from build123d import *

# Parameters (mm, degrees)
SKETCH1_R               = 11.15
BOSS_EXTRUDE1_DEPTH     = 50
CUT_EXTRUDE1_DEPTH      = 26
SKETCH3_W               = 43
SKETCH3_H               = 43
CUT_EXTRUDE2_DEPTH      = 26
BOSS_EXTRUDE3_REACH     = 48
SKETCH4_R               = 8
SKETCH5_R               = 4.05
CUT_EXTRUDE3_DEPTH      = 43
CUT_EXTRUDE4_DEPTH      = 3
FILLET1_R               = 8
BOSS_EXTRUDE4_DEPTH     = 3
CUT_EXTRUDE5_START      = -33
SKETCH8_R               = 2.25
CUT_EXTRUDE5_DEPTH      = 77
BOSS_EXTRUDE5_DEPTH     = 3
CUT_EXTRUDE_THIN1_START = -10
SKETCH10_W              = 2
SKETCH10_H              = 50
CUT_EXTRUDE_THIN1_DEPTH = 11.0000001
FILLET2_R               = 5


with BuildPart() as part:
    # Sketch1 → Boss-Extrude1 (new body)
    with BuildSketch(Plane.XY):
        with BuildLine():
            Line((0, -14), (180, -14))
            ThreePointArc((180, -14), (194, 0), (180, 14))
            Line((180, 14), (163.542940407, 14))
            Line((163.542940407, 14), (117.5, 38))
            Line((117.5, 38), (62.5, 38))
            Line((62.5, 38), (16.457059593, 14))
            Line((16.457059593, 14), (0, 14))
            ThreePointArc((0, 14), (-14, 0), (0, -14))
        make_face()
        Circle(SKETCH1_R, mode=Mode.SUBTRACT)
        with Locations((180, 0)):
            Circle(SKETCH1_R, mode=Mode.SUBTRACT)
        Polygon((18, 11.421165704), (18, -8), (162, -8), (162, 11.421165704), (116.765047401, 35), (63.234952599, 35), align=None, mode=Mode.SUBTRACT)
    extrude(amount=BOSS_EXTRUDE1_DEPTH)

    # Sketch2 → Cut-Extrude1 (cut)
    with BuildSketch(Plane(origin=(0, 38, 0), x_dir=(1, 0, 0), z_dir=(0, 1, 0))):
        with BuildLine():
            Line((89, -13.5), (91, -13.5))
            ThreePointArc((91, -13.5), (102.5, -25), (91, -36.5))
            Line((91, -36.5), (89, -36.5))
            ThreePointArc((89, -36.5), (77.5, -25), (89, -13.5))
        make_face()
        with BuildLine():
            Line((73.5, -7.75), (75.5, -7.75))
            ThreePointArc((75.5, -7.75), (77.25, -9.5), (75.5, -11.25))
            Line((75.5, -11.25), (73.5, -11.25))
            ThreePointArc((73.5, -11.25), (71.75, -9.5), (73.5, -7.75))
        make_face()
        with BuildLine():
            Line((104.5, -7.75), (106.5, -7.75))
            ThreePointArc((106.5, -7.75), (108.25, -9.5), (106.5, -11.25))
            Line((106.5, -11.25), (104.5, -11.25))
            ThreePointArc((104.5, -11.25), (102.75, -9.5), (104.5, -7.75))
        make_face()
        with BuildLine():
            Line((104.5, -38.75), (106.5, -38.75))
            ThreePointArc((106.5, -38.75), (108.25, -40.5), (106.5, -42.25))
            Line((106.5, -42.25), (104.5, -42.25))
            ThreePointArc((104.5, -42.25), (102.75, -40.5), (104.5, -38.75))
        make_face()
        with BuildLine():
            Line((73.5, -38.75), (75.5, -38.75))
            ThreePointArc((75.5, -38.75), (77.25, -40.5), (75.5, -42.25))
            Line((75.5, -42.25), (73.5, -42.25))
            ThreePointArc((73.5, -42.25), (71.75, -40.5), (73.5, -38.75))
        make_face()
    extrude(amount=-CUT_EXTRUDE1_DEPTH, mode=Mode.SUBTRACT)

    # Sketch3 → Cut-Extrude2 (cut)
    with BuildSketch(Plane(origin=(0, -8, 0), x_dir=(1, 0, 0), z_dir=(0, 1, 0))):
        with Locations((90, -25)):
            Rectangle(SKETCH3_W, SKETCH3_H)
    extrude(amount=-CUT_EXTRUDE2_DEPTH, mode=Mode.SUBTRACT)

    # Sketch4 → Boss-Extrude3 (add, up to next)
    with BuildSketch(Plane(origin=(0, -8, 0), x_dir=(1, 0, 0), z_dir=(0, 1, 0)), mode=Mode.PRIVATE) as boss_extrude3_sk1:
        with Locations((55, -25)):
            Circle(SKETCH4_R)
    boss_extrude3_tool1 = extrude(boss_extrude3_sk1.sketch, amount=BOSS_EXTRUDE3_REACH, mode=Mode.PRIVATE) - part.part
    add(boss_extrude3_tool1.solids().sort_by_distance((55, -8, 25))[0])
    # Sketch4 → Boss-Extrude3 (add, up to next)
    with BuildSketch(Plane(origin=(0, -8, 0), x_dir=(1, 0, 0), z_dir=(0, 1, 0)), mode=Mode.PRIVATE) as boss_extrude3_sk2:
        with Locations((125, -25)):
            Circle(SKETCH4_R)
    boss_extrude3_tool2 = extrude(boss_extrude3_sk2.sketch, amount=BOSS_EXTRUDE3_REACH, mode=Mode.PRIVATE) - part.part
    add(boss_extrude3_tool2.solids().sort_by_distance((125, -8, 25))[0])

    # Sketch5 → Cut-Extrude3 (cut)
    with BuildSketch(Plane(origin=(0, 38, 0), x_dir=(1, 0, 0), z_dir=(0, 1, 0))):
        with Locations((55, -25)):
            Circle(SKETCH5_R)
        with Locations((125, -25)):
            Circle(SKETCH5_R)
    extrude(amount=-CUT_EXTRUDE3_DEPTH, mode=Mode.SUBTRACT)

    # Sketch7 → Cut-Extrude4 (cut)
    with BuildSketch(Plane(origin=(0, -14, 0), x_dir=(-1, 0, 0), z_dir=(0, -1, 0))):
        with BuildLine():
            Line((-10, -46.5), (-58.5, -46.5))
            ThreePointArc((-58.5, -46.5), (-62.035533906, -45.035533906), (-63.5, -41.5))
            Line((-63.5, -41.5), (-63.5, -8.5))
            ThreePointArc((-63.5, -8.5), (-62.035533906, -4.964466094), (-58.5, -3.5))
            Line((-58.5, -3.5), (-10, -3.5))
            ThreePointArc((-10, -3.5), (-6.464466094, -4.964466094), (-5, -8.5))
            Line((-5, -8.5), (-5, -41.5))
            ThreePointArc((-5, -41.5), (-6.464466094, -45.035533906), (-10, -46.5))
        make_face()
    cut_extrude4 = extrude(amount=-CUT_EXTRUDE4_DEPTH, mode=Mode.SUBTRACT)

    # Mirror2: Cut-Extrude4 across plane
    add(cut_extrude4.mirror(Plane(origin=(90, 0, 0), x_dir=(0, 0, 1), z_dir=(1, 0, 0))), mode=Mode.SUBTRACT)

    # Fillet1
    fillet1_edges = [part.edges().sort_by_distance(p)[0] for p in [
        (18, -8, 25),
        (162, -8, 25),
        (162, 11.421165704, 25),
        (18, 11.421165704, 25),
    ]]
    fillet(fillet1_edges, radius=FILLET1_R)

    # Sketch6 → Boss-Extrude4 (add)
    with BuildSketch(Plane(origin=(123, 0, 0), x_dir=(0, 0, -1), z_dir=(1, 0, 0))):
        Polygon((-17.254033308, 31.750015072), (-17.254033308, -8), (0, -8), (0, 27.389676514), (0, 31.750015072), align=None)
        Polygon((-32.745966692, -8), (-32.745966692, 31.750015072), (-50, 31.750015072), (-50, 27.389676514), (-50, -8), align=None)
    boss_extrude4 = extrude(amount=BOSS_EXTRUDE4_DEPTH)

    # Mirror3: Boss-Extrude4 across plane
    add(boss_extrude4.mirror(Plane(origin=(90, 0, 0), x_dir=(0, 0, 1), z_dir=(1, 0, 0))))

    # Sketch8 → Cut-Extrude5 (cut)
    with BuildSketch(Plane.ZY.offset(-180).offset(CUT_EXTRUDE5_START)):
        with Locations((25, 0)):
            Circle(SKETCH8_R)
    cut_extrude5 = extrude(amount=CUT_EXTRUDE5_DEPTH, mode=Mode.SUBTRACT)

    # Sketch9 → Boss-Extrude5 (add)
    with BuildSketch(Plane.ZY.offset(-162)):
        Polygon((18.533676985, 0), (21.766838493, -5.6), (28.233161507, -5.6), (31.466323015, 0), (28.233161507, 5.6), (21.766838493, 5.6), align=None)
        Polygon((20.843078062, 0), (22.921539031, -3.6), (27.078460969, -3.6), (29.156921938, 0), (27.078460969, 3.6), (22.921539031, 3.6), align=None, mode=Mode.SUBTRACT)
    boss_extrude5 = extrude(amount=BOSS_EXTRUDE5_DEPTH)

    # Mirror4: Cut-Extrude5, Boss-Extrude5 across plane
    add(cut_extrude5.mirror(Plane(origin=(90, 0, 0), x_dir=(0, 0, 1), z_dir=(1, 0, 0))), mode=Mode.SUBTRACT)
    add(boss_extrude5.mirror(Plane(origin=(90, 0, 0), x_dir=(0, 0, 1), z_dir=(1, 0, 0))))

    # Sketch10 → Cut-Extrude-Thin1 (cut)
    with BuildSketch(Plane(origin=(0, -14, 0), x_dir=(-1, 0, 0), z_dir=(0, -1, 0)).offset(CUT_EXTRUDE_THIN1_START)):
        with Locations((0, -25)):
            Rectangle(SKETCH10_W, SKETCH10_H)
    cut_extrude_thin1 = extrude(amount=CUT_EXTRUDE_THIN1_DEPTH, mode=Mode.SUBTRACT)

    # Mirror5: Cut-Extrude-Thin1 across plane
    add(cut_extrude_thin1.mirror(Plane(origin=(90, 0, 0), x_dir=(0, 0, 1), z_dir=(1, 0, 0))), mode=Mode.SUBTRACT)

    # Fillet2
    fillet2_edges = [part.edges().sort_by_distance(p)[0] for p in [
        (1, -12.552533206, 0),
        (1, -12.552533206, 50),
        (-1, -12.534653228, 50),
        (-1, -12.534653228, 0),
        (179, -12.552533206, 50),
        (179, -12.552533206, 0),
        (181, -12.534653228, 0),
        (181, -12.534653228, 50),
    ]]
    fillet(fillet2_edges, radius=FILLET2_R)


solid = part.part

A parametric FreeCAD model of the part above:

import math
import FreeCAD as App
import Part
import Sketcher
Q = App.Units.Quantity


def edges_at(feature, points):
    """Names of the edges that pass closest to the given points."""
    edges = feature.Shape.Edges
    near = lambda p: min(range(len(edges)), key=lambda i: edges[i].distToShape(Part.Vertex(*p))[0])
    return sorted({f"Edge{near(p) + 1}" for p in points})

doc = App.newDocument("Part")
body = doc.addObject("PartDesign::Body", "Body")

sketch1 = body.newObject("Sketcher::SketchObject", "Sketch")
sketch1.AttachmentSupport = (doc.getObject("XY_Plane"), [""])
sketch1.MapMode = "FlatFace"
sketch1.addGeometry([
    Part.LineSegment(App.Vector(0, -14, 0), App.Vector(180, -14, 0)),
    Part.ArcOfCircle(Part.Circle(App.Vector(180, 0, 0), App.Vector(0, 0, 1), 14), math.radians(-90), math.radians(90)),
    Part.LineSegment(App.Vector(180, 14, 0), App.Vector(164, 14, 0)),
    Part.LineSegment(App.Vector(164, 14, 0), App.Vector(118, 38, 0)),
    Part.LineSegment(App.Vector(118, 38, 0), App.Vector(62, 38, 0)),
    Part.LineSegment(App.Vector(62, 38, 0), App.Vector(16, 14, 0)),
    Part.LineSegment(App.Vector(16, 14, 0), App.Vector(0, 14, 0)),
    Part.ArcOfCircle(Part.Circle(App.Vector(0, 0, 0), App.Vector(0, 0, 1), 14), math.radians(90), math.radians(270)),
    Part.Circle(App.Vector(0, 0, 0), App.Vector(0, 0, 1), 11),
    Part.Circle(App.Vector(180, 0, 0), App.Vector(0, 0, 1), 11),
    Part.LineSegment(App.Vector(18, -8, 0), App.Vector(18, 11, 0)),
    Part.LineSegment(App.Vector(18, 11, 0), App.Vector(63, 35, 0)),
    Part.LineSegment(App.Vector(63, 35, 0), App.Vector(117, 35, 0)),
    Part.LineSegment(App.Vector(117, 35, 0), App.Vector(162, 11, 0)),
    Part.LineSegment(App.Vector(162, 11, 0), App.Vector(162, -8, 0)),
    Part.LineSegment(App.Vector(162, -8, 0), App.Vector(18, -8, 0)),
], False)
sketch1.addConstraint([
    Sketcher.Constraint("Tangent", 0, 2, 1, 1),
    Sketcher.Constraint("Tangent", 1, 2, 2, 1),
    Sketcher.Constraint("Coincident", 2, 2, 3, 1),
    Sketcher.Constraint("Coincident", 3, 2, 4, 1),
    Sketcher.Constraint("Coincident", 4, 2, 5, 1),
    Sketcher.Constraint("Coincident", 5, 2, 6, 1),
    Sketcher.Constraint("Tangent", 6, 2, 7, 1),
    Sketcher.Constraint("Tangent", 7, 2, 0, 1),
    Sketcher.Constraint("Coincident", 10, 2, 11, 1),
    Sketcher.Constraint("Coincident", 11, 2, 12, 1),
    Sketcher.Constraint("Coincident", 12, 2, 13, 1),
    Sketcher.Constraint("Coincident", 13, 2, 14, 1),
    Sketcher.Constraint("Coincident", 14, 2, 15, 1),
    Sketcher.Constraint("Coincident", 15, 2, 10, 1),
    Sketcher.Constraint("Horizontal", 0),
    Sketcher.Constraint("Horizontal", 2),
    Sketcher.Constraint("Horizontal", 4),
    Sketcher.Constraint("Horizontal", 6),
    Sketcher.Constraint("Vertical", 10),
    Sketcher.Constraint("Horizontal", 12),
    Sketcher.Constraint("Vertical", 14),
    Sketcher.Constraint("Horizontal", 15),
    Sketcher.Constraint("Coincident", 7, 3, -1, 1),
    Sketcher.Constraint("Coincident", 8, 3, -1, 1),
    Sketcher.Constraint("Coincident", 9, 3, 1, 3),
    Sketcher.Constraint("Equal", 1, 7),
    Sketcher.Constraint("Equal", 8, 9),
    Sketcher.Constraint("Parallel", 5, 11),
    Sketcher.Constraint("Parallel", 3, 13),
    Sketcher.Constraint("Horizontal", 10, 2, 13, 2),
    Sketcher.Constraint("Equal", 2, 6),
    Sketcher.Constraint("Equal", 3, 5),
    Sketcher.Constraint("Radius", 1, Q("14 mm")),
    Sketcher.Constraint("Diameter", 8, Q("22.3 mm")),
    Sketcher.Constraint("DistanceX", 0, 1, 0, 2, Q("180 mm")),
    Sketcher.Constraint("DistanceX", 4, 2, 4, 1, Q("55 mm")),
    Sketcher.Constraint("DistanceX", 15, 2, 15, 1, Q("144 mm")),
    Sketcher.Constraint("DistanceY", -1, 1, 3, 2, Q("38 mm")),
    Sketcher.Constraint("DistanceX", -1, 1, 10, 2, Q("18 mm")),
    Sketcher.Constraint("DistanceY", -1, 1, 11, 2, Q("35 mm")),
    Sketcher.Constraint("DistanceY", 14, 2, -1, 1, Q("8 mm")),
    Sketcher.Constraint("DistanceX", 2, 2, 2, 1, Q("16.45706 mm")),
    Sketcher.Constraint("DistanceX", 12, 1, 12, 2, Q("53.530095 mm")),
])
pad1 = body.newObject("PartDesign::Pad", "Pad")
pad1.Profile = sketch1
pad1.Length = 50

sketch2 = body.newObject("Sketcher::SketchObject", "Sketch001")
sketch2.AttachmentSupport = (doc.getObject("XZ_Plane"), [""])
sketch2.MapMode = "FlatFace"
sketch2.AttachmentOffset = App.Placement(App.Vector(0, 0, -38), App.Rotation())
sketch2.addGeometry([
    Part.LineSegment(App.Vector(91, 13.5, 0), App.Vector(89, 13.5, 0)),
    Part.ArcOfCircle(Part.Circle(App.Vector(89, 25, 0), App.Vector(0, 0, 1), 11.5), math.radians(90), math.radians(270)),
    Part.LineSegment(App.Vector(89, 36.5, 0), App.Vector(91, 36.5, 0)),
    Part.ArcOfCircle(Part.Circle(App.Vector(91, 25, 0), App.Vector(0, 0, 1), 11.5), math.radians(-90), math.radians(90)),
    Part.LineSegment(App.Vector(75.5, 7.8, 0), App.Vector(73.5, 7.8, 0)),
    Part.ArcOfCircle(Part.Circle(App.Vector(73.5, 9.5, 0), App.Vector(0, 0, 1), 1.8), math.radians(90), math.radians(270)),
    Part.LineSegment(App.Vector(73.5, 11.2, 0), App.Vector(75.5, 11.2, 0)),
    Part.ArcOfCircle(Part.Circle(App.Vector(75.5, 9.5, 0), App.Vector(0, 0, 1), 1.8), math.radians(-90), math.radians(90)),
    Part.LineSegment(App.Vector(106.5, 7.8, 0), App.Vector(104.5, 7.8, 0)),
    Part.ArcOfCircle(Part.Circle(App.Vector(104.5, 9.5, 0), App.Vector(0, 0, 1), 1.8), math.radians(90), math.radians(270)),
    Part.LineSegment(App.Vector(104.5, 11.2, 0), App.Vector(106.5, 11.2, 0)),
    Part.ArcOfCircle(Part.Circle(App.Vector(106.5, 9.5, 0), App.Vector(0, 0, 1), 1.8), math.radians(-90), math.radians(90)),
    Part.LineSegment(App.Vector(106.5, 38.8, 0), App.Vector(104.5, 38.8, 0)),
    Part.ArcOfCircle(Part.Circle(App.Vector(104.5, 40.5, 0), App.Vector(0, 0, 1), 1.8), math.radians(90), math.radians(270)),
    Part.LineSegment(App.Vector(104.5, 42.2, 0), App.Vector(106.5, 42.2, 0)),
    Part.ArcOfCircle(Part.Circle(App.Vector(106.5, 40.5, 0), App.Vector(0, 0, 1), 1.8), math.radians(-90), math.radians(90)),
    Part.LineSegment(App.Vector(75.5, 38.8, 0), App.Vector(73.5, 38.8, 0)),
    Part.ArcOfCircle(Part.Circle(App.Vector(73.5, 40.5, 0), App.Vector(0, 0, 1), 1.8), math.radians(90), math.radians(270)),
    Part.LineSegment(App.Vector(73.5, 42.2, 0), App.Vector(75.5, 42.2, 0)),
    Part.ArcOfCircle(Part.Circle(App.Vector(75.5, 40.5, 0), App.Vector(0, 0, 1), 1.8), math.radians(-90), math.radians(90)),
], False)
sketch2.addConstraint([
    Sketcher.Constraint("Tangent", 0, 2, 1, 2),
    Sketcher.Constraint("Tangent", 1, 1, 2, 1),
    Sketcher.Constraint("Tangent", 2, 2, 3, 2),
    Sketcher.Constraint("Tangent", 3, 1, 0, 1),
    Sketcher.Constraint("Tangent", 4, 2, 5, 2),
    Sketcher.Constraint("Tangent", 5, 1, 6, 1),
    Sketcher.Constraint("Tangent", 6, 2, 7, 2),
    Sketcher.Constraint("Tangent", 7, 1, 4, 1),
    Sketcher.Constraint("Tangent", 8, 2, 9, 2),
    Sketcher.Constraint("Tangent", 9, 1, 10, 1),
    Sketcher.Constraint("Tangent", 10, 2, 11, 2),
    Sketcher.Constraint("Tangent", 11, 1, 8, 1),
    Sketcher.Constraint("Tangent", 12, 2, 13, 2),
    Sketcher.Constraint("Tangent", 13, 1, 14, 1),
    Sketcher.Constraint("Tangent", 14, 2, 15, 2),
    Sketcher.Constraint("Tangent", 15, 1, 12, 1),
    Sketcher.Constraint("Tangent", 16, 2, 17, 2),
    Sketcher.Constraint("Tangent", 17, 1, 18, 1),
    Sketcher.Constraint("Tangent", 18, 2, 19, 2),
    Sketcher.Constraint("Tangent", 19, 1, 16, 1),
    Sketcher.Constraint("Horizontal", 0),
    Sketcher.Constraint("Horizontal", 2),
    Sketcher.Constraint("Horizontal", 4),
    Sketcher.Constraint("Horizontal", 6),
    Sketcher.Constraint("Horizontal", 8),
    Sketcher.Constraint("Horizontal", 10),
    Sketcher.Constraint("Horizontal", 12),
    Sketcher.Constraint("Horizontal", 14),
    Sketcher.Constraint("Horizontal", 16),
    Sketcher.Constraint("Horizontal", 18),
    Sketcher.Constraint("Equal", 7, 9),
    Sketcher.Constraint("Equal", 11, 13),
    Sketcher.Constraint("Equal", 15, 17),
    Sketcher.Constraint("Horizontal", 7, 3, 9, 3),
    Sketcher.Constraint("Horizontal", 15, 3, 17, 3),
    Sketcher.Constraint("Vertical", 9, 3, 13, 3),
    Sketcher.Constraint("Vertical", 11, 3, 15, 3),
    Sketcher.Constraint("Vertical", 5, 3, 17, 3),
    Sketcher.Constraint("Vertical", 7, 3, 19, 3),
    Sketcher.Constraint("Equal", 2, 4),
    Sketcher.Constraint("Equal", 6, 8),
    Sketcher.Constraint("Radius", 1, Q("11.5 mm")),
    Sketcher.Constraint("DistanceX", 0, 2, 0, 1, Q("2 mm")),
    Sketcher.Constraint("Radius", 5, Q("1.75 mm")),
    Sketcher.Constraint("DistanceX", -1, 1, 1, 3, Q("89 mm")),
    Sketcher.Constraint("DistanceY", -1, 1, 1, 3, Q("25 mm")),
    Sketcher.Constraint("DistanceX", 7, 3, 9, 3, Q("29 mm")),
    Sketcher.Constraint("DistanceY", 9, 3, 13, 3, Q("31 mm")),
    Sketcher.Constraint("DistanceY", 7, 3, 0, 2, Q("4 mm")),
    Sketcher.Constraint("DistanceX", -1, 1, 5, 3, Q("73.5 mm")),
])
pocket1 = body.newObject("PartDesign::Pocket", "Pocket")
pocket1.Profile = sketch2
pocket1.Length = 26
pocket1.Reversed = True

sketch3 = body.newObject("Sketcher::SketchObject", "Sketch002")
sketch3.AttachmentSupport = (doc.getObject("XZ_Plane"), [""])
sketch3.MapMode = "FlatFace"
sketch3.AttachmentOffset = App.Placement(App.Vector(0, 0, 8), App.Rotation())
sketch3.addGeometry([
    Part.LineSegment(App.Vector(68, 4, 0), App.Vector(68, 46, 0)),
    Part.LineSegment(App.Vector(68, 46, 0), App.Vector(112, 46, 0)),
    Part.LineSegment(App.Vector(112, 46, 0), App.Vector(112, 4, 0)),
    Part.LineSegment(App.Vector(112, 4, 0), App.Vector(68, 4, 0)),
], False)
sketch3.addConstraint([
    Sketcher.Constraint("Coincident", 0, 2, 1, 1),
    Sketcher.Constraint("Coincident", 1, 2, 2, 1),
    Sketcher.Constraint("Coincident", 2, 2, 3, 1),
    Sketcher.Constraint("Coincident", 3, 2, 0, 1),
    Sketcher.Constraint("Vertical", 0),
    Sketcher.Constraint("Horizontal", 1),
    Sketcher.Constraint("Vertical", 2),
    Sketcher.Constraint("Horizontal", 3),
    Sketcher.Constraint("Equal", 3, 0),
    Sketcher.Constraint("DistanceX", 1, 1, 1, 2, Q("43 mm")),
    Sketcher.Constraint("DistanceX", -1, 1, 0, 2, Q("68.5 mm")),
    Sketcher.Constraint("DistanceY", -1, 1, 0, 2, Q("46.5 mm")),
])
pocket2 = body.newObject("PartDesign::Pocket", "Pocket001")
pocket2.Profile = sketch3
pocket2.Length = 26
pocket2.Reversed = True

sketch4 = body.newObject("Sketcher::SketchObject", "Sketch003")
sketch4.AttachmentSupport = (doc.getObject("XZ_Plane"), [""])
sketch4.MapMode = "FlatFace"
sketch4.AttachmentOffset = App.Placement(App.Vector(0, 0, 8), App.Rotation())
sketch4.addGeometry(Part.Circle(App.Vector(55, 25, 0), App.Vector(0, 0, 1), 8), False)
sketch4.addConstraint([
    Sketcher.Constraint("Diameter", 0, Q("16 mm")),
    Sketcher.Constraint("DistanceX", -1, 1, 0, 3, Q("55 mm")),
    Sketcher.Constraint("DistanceY", -1, 1, 0, 3, Q("25 mm")),
])
pad2 = body.newObject("PartDesign::Pad", "Pad001")
pad2.Profile = sketch4
pad2.Type = "UpToFirst"
pad2.Reversed = True

sketch5 = body.newObject("Sketcher::SketchObject", "Sketch004")
sketch5.AttachmentSupport = (doc.getObject("XZ_Plane"), [""])
sketch5.MapMode = "FlatFace"
sketch5.AttachmentOffset = App.Placement(App.Vector(0, 0, 8), App.Rotation())
sketch5.addGeometry(Part.Circle(App.Vector(125, 25, 0), App.Vector(0, 0, 1), 8), False)
sketch5.addConstraint([
    Sketcher.Constraint("Diameter", 0, Q("16 mm")),
    Sketcher.Constraint("DistanceX", -1, 1, 0, 3, Q("125 mm")),
    Sketcher.Constraint("DistanceY", -1, 1, 0, 3, Q("25 mm")),
])
pad3 = body.newObject("PartDesign::Pad", "Pad002")
pad3.Profile = sketch5
pad3.Type = "UpToFirst"
pad3.Reversed = True

sketch6 = body.newObject("Sketcher::SketchObject", "Sketch005")
sketch6.AttachmentSupport = (doc.getObject("XZ_Plane"), [""])
sketch6.MapMode = "FlatFace"
sketch6.AttachmentOffset = App.Placement(App.Vector(0, 0, -38), App.Rotation())
sketch6.addGeometry([
    Part.Circle(App.Vector(55, 25, 0), App.Vector(0, 0, 1), 4),
    Part.Circle(App.Vector(125, 25, 0), App.Vector(0, 0, 1), 4),
], False)
sketch6.addConstraint([
    Sketcher.Constraint("Equal", 0, 1),
    Sketcher.Constraint("Horizontal", 0, 3, 1, 3),
    Sketcher.Constraint("Diameter", 0, Q("8.1 mm")),
    Sketcher.Constraint("DistanceX", -1, 1, 0, 3, Q("55 mm")),
    Sketcher.Constraint("DistanceY", -1, 1, 0, 3, Q("25 mm")),
    Sketcher.Constraint("DistanceX", -1, 1, 1, 3, Q("125 mm")),
])
pocket3 = body.newObject("PartDesign::Pocket", "Pocket002")
pocket3.Profile = sketch6
pocket3.Length = 43
pocket3.Reversed = True

sketch7 = body.newObject("Sketcher::SketchObject", "Sketch006")
sketch7.AttachmentSupport = (doc.getObject("XZ_Plane"), [""])
sketch7.MapMode = "FlatFace"
sketch7.AttachmentOffset = App.Placement(App.Vector(0, 0, 14), App.Rotation())
sketch7.addGeometry([
    Part.LineSegment(App.Vector(58, 46, 0), App.Vector(10, 46, 0)),
    Part.ArcOfCircle(Part.Circle(App.Vector(10, 42, 0), App.Vector(0, 0, 1), 5), math.radians(90), math.radians(180)),
    Part.LineSegment(App.Vector(5, 42, 0), App.Vector(5, 8, 0)),
    Part.ArcOfCircle(Part.Circle(App.Vector(10, 8, 0), App.Vector(0, 0, 1), 5), math.radians(180), math.radians(270)),
    Part.LineSegment(App.Vector(10, 4, 0), App.Vector(58, 4, 0)),
    Part.ArcOfCircle(Part.Circle(App.Vector(58, 8, 0), App.Vector(0, 0, 1), 5), math.radians(-90), math.radians(0)),
    Part.LineSegment(App.Vector(64, 8, 0), App.Vector(64, 42, 0)),
    Part.ArcOfCircle(Part.Circle(App.Vector(58, 42, 0), App.Vector(0, 0, 1), 5), math.radians(0), math.radians(90)),
], False)
sketch7.addConstraint([
    Sketcher.Constraint("Tangent", 0, 2, 1, 1),
    Sketcher.Constraint("Tangent", 1, 2, 2, 1),
    Sketcher.Constraint("Tangent", 2, 2, 3, 1),
    Sketcher.Constraint("Tangent", 3, 2, 4, 1),
    Sketcher.Constraint("Tangent", 4, 2, 5, 1),
    Sketcher.Constraint("Tangent", 5, 2, 6, 1),
    Sketcher.Constraint("Tangent", 6, 2, 7, 1),
    Sketcher.Constraint("Tangent", 7, 2, 0, 1),
    Sketcher.Constraint("Horizontal", 0),
    Sketcher.Constraint("Vertical", 2),
    Sketcher.Constraint("Horizontal", 4),
    Sketcher.Constraint("Vertical", 6),
    Sketcher.Constraint("Equal", 1, 3),
    Sketcher.Constraint("Equal", 3, 5),
    Sketcher.Constraint("Equal", 5, 7),
    Sketcher.Constraint("Radius", 1, Q("5 mm")),
    Sketcher.Constraint("DistanceY", 2, 2, 2, 1, Q("33 mm")),
    Sketcher.Constraint("DistanceX", 0, 2, 0, 1, Q("48.5 mm")),
    Sketcher.Constraint("DistanceX", -1, 1, 1, 3, Q("10 mm")),
    Sketcher.Constraint("DistanceY", -1, 1, 1, 3, Q("41.5 mm")),
])
pocket4 = body.newObject("PartDesign::Pocket", "Pocket003")
pocket4.Profile = sketch7
pocket4.Length = 3
doc.recompute()

datumplane = body.newObject("PartDesign::Plane", "DatumPlane")
datumplane.AttachmentSupport = (doc.getObject("YZ_Plane"), [""])
datumplane.MapMode = "FlatFace"
datumplane.AttachmentOffset = App.Placement(App.Vector(0, 0, 90), App.Rotation())
mirrored = body.newObject("PartDesign::Mirrored", "Mirrored")
mirrored.Originals = [pocket4]
mirrored.MirrorPlane = (datumplane, [""])
body.Tip = mirrored
doc.recompute()

fillet = body.newObject("PartDesign::Fillet", "Fillet")
fillet.Base = (mirrored, edges_at(mirrored, [
    (18, -8, 25),
    (162, -8, 25),
    (162, 11.421, 25),
    (18, 11.421, 25),
]))
fillet.Radius = 8

sketch8 = body.newObject("Sketcher::SketchObject", "Sketch007")
sketch8.AttachmentSupport = (doc.getObject("YZ_Plane"), [""])
sketch8.MapMode = "FlatFace"
sketch8.AttachmentOffset = App.Placement(App.Vector(0, 0, 123), App.Rotation())
sketch8.addGeometry([
    Part.LineSegment(App.Vector(32, 17, 0), App.Vector(-8, 17, 0)),
    Part.LineSegment(App.Vector(-8, 17, 0), App.Vector(-8, 0, 0)),
    Part.LineSegment(App.Vector(-8, 0, 0), App.Vector(32, 0, 0)),
    Part.LineSegment(App.Vector(32, 0, 0), App.Vector(32, 17, 0)),
    Part.LineSegment(App.Vector(-8, 33, 0), App.Vector(32, 33, 0)),
    Part.LineSegment(App.Vector(32, 33, 0), App.Vector(32, 50, 0)),
    Part.LineSegment(App.Vector(32, 50, 0), App.Vector(-8, 50, 0)),
    Part.LineSegment(App.Vector(-8, 50, 0), App.Vector(-8, 33, 0)),
], False)
sketch8.addConstraint([
    Sketcher.Constraint("Coincident", 0, 2, 1, 1),
    Sketcher.Constraint("Coincident", 1, 2, 2, 1),
    Sketcher.Constraint("Coincident", 2, 2, 3, 1),
    Sketcher.Constraint("Coincident", 3, 2, 0, 1),
    Sketcher.Constraint("Coincident", 4, 2, 5, 1),
    Sketcher.Constraint("Coincident", 5, 2, 6, 1),
    Sketcher.Constraint("Coincident", 6, 2, 7, 1),
    Sketcher.Constraint("Coincident", 7, 2, 4, 1),
    Sketcher.Constraint("Horizontal", 0),
    Sketcher.Constraint("Vertical", 1),
    Sketcher.Constraint("Horizontal", 2),
    Sketcher.Constraint("Vertical", 3),
    Sketcher.Constraint("Horizontal", 4),
    Sketcher.Constraint("Vertical", 5),
    Sketcher.Constraint("Horizontal", 6),
    Sketcher.Constraint("Vertical", 7),
    Sketcher.Constraint("PointOnObject", 1, 2, -1),
    Sketcher.Constraint("Vertical", 3, 2, 4, 2),
    Sketcher.Constraint("Vertical", 1, 2, 6, 2),
    Sketcher.Constraint("Equal", 3, 5),
    Sketcher.Constraint("DistanceX", 0, 2, -1, 1, Q("8 mm")),
    Sketcher.Constraint("DistanceY", -1, 1, 5, 2, Q("50 mm")),
    Sketcher.Constraint("DistanceX", 0, 2, 0, 1, Q("39.750015 mm")),
    Sketcher.Constraint("DistanceY", 1, 2, 1, 1, Q("17.254033 mm")),
])
pad4 = body.newObject("PartDesign::Pad", "Pad003")
pad4.Profile = sketch8
pad4.Length = 3
doc.recompute()

datumplane2 = body.newObject("PartDesign::Plane", "DatumPlane001")
datumplane2.AttachmentSupport = (doc.getObject("YZ_Plane"), [""])
datumplane2.MapMode = "FlatFace"
datumplane2.AttachmentOffset = App.Placement(App.Vector(0, 0, 90), App.Rotation())
mirrored2 = body.newObject("PartDesign::Mirrored", "Mirrored001")
mirrored2.Originals = [pad4]
mirrored2.MirrorPlane = (datumplane2, [""])
body.Tip = mirrored2

sketch9 = body.newObject("Sketcher::SketchObject", "Sketch008")
sketch9.AttachmentSupport = (doc.getObject("YZ_Plane"), [""])
sketch9.MapMode = "FlatFace"
sketch9.AttachmentOffset = App.Placement(App.Vector(0, 0, 213), App.Rotation())
sketch9.addGeometry(Part.Circle(App.Vector(0, 25, 0), App.Vector(0, 0, 1), 2.2), False)
sketch9.addConstraint([
    Sketcher.Constraint("PointOnObject", 0, 3, -2),
    Sketcher.Constraint("Diameter", 0, Q("4.5 mm")),
    Sketcher.Constraint("DistanceY", -1, 1, 0, 3, Q("25 mm")),
])
pocket5 = body.newObject("PartDesign::Pocket", "Pocket004")
pocket5.Profile = sketch9
pocket5.Length = 77

sketch10 = body.newObject("Sketcher::SketchObject", "Sketch009")
sketch10.AttachmentSupport = (doc.getObject("YZ_Plane"), [""])
sketch10.MapMode = "FlatFace"
sketch10.AttachmentOffset = App.Placement(App.Vector(0, 0, 162), App.Rotation())
sketch10.addGeometry([
    Part.LineSegment(App.Vector(0, 18.5, 0), App.Vector(-5.6, 21.8, 0)),
    Part.LineSegment(App.Vector(-5.6, 21.8, 0), App.Vector(-5.6, 28.2, 0)),
    Part.LineSegment(App.Vector(-5.6, 28.2, 0), App.Vector(0, 31.5, 0)),
    Part.LineSegment(App.Vector(0, 31.5, 0), App.Vector(5.6, 28.2, 0)),
    Part.LineSegment(App.Vector(5.6, 28.2, 0), App.Vector(5.6, 21.8, 0)),
    Part.LineSegment(App.Vector(5.6, 21.8, 0), App.Vector(0, 18.5, 0)),
    Part.LineSegment(App.Vector(-3.6, 22.9, 0), App.Vector(0, 20.8, 0)),
    Part.LineSegment(App.Vector(0, 20.8, 0), App.Vector(3.6, 22.9, 0)),
    Part.LineSegment(App.Vector(3.6, 22.9, 0), App.Vector(3.6, 27.1, 0)),
    Part.LineSegment(App.Vector(3.6, 27.1, 0), App.Vector(0, 29.2, 0)),
    Part.LineSegment(App.Vector(0, 29.2, 0), App.Vector(-3.6, 27.1, 0)),
    Part.LineSegment(App.Vector(-3.6, 27.1, 0), App.Vector(-3.6, 22.9, 0)),
], False)
sketch10.addConstraint([
    Sketcher.Constraint("Coincident", 0, 2, 1, 1),
    Sketcher.Constraint("Coincident", 1, 2, 2, 1),
    Sketcher.Constraint("Coincident", 2, 2, 3, 1),
    Sketcher.Constraint("Coincident", 3, 2, 4, 1),
    Sketcher.Constraint("Coincident", 4, 2, 5, 1),
    Sketcher.Constraint("Coincident", 5, 2, 0, 1),
    Sketcher.Constraint("Coincident", 6, 2, 7, 1),
    Sketcher.Constraint("Coincident", 7, 2, 8, 1),
    Sketcher.Constraint("Coincident", 8, 2, 9, 1),
    Sketcher.Constraint("Coincident", 9, 2, 10, 1),
    Sketcher.Constraint("Coincident", 10, 2, 11, 1),
    Sketcher.Constraint("Coincident", 11, 2, 6, 1),
    Sketcher.Constraint("Vertical", 1),
    Sketcher.Constraint("Vertical", 4),
    Sketcher.Constraint("Vertical", 8),
    Sketcher.Constraint("Vertical", 11),
    Sketcher.Constraint("Symmetric", 1, 2, 3, 2, -2),
    Sketcher.Constraint("Symmetric", 8, 2, 10, 2, -2),
    Sketcher.Constraint("PointOnObject", 2, 2, -2),
    Sketcher.Constraint("PointOnObject", 5, 2, -2),
    Sketcher.Constraint("PointOnObject", 6, 2, -2),
    Sketcher.Constraint("PointOnObject", 9, 2, -2),
    Sketcher.Constraint("Parallel", 0, 3),
    Sketcher.Constraint("Parallel", 2, 5),
    Sketcher.Constraint("Parallel", 3, 6),
    Sketcher.Constraint("Parallel", 5, 7),
    Sketcher.Constraint("Parallel", 6, 9),
    Sketcher.Constraint("Angle", 0, Q("150 deg")),
    Sketcher.Constraint("DistanceX", 7, 2, 4, 2, Q("2 mm")),
    Sketcher.Constraint("DistanceX", 0, 2, -1, 1, Q("5.6 mm")),
    Sketcher.Constraint("DistanceY", 8, 1, 8, 2, Q("4.156922 mm")),
    Sketcher.Constraint("DistanceY", 5, 2, 6, 2, Q("2.309401 mm")),
    Sketcher.Constraint("DistanceY", 8, 2, 3, 2, Q("1.154701 mm")),
    Sketcher.Constraint("DistanceY", -1, 1, 0, 2, Q("21.766838 mm")),
])
pad5 = body.newObject("PartDesign::Pad", "Pad004")
pad5.Profile = sketch10
pad5.Length = 3
pad5.Reversed = True
doc.recompute()

datumplane3 = body.newObject("PartDesign::Plane", "DatumPlane002")
datumplane3.AttachmentSupport = (doc.getObject("YZ_Plane"), [""])
datumplane3.MapMode = "FlatFace"
datumplane3.AttachmentOffset = App.Placement(App.Vector(0, 0, 90), App.Rotation())
mirrored3 = body.newObject("PartDesign::Mirrored", "Mirrored002")
mirrored3.Originals = [pocket5, pad5]
mirrored3.MirrorPlane = (datumplane3, [""])
body.Tip = mirrored3

sketch11 = body.newObject("Sketcher::SketchObject", "Sketch010")
sketch11.AttachmentSupport = (doc.getObject("XZ_Plane"), [""])
sketch11.MapMode = "FlatFace"
sketch11.AttachmentOffset = App.Placement(App.Vector(0, 0, 4), App.Rotation())
sketch11.addGeometry([
    Part.LineSegment(App.Vector(1, 0, 0), App.Vector(1, 50, 0)),
    Part.LineSegment(App.Vector(1, 50, 0), App.Vector(-1, 50, 0)),
    Part.LineSegment(App.Vector(-1, 50, 0), App.Vector(-1, 0, 0)),
    Part.LineSegment(App.Vector(-1, 0, 0), App.Vector(1, 0, 0)),
], False)
sketch11.addConstraint([
    Sketcher.Constraint("Coincident", 0, 2, 1, 1),
    Sketcher.Constraint("Coincident", 1, 2, 2, 1),
    Sketcher.Constraint("Coincident", 2, 2, 3, 1),
    Sketcher.Constraint("Coincident", 3, 2, 0, 1),
    Sketcher.Constraint("Vertical", 0),
    Sketcher.Constraint("Horizontal", 1),
    Sketcher.Constraint("Vertical", 2),
    Sketcher.Constraint("Horizontal", 3),
    Sketcher.Constraint("Symmetric", 2, 2, 3, 2, -1, 1),
    Sketcher.Constraint("DistanceX", 1, 2, 1, 1, Q("2 mm")),
    Sketcher.Constraint("DistanceY", 0, 1, 0, 2, Q("50 mm")),
])
pocket6 = body.newObject("PartDesign::Pocket", "Pocket005")
pocket6.Profile = sketch11
pocket6.Length = 11
pocket6.Reversed = True
doc.recompute()

datumplane4 = body.newObject("PartDesign::Plane", "DatumPlane003")
datumplane4.AttachmentSupport = (doc.getObject("YZ_Plane"), [""])
datumplane4.MapMode = "FlatFace"
datumplane4.AttachmentOffset = App.Placement(App.Vector(0, 0, 90), App.Rotation())
mirrored4 = body.newObject("PartDesign::Mirrored", "Mirrored003")
mirrored4.Originals = [pocket6]
mirrored4.MirrorPlane = (datumplane4, [""])
body.Tip = mirrored4
doc.recompute()

fillet2 = body.newObject("PartDesign::Fillet", "Fillet001")
fillet2.Base = (mirrored4, edges_at(mirrored4, [
    (1, -12.553, 0),
    (1, -12.553, 50),
    (-1, -12.535, 50),
    (-1, -12.535, 0),
    (179, -12.553, 50),
    (179, -12.553, 0),
    (181, -12.535, 0),
    (181, -12.535, 50),
]))
fillet2.Radius = 5

doc.recompute()
